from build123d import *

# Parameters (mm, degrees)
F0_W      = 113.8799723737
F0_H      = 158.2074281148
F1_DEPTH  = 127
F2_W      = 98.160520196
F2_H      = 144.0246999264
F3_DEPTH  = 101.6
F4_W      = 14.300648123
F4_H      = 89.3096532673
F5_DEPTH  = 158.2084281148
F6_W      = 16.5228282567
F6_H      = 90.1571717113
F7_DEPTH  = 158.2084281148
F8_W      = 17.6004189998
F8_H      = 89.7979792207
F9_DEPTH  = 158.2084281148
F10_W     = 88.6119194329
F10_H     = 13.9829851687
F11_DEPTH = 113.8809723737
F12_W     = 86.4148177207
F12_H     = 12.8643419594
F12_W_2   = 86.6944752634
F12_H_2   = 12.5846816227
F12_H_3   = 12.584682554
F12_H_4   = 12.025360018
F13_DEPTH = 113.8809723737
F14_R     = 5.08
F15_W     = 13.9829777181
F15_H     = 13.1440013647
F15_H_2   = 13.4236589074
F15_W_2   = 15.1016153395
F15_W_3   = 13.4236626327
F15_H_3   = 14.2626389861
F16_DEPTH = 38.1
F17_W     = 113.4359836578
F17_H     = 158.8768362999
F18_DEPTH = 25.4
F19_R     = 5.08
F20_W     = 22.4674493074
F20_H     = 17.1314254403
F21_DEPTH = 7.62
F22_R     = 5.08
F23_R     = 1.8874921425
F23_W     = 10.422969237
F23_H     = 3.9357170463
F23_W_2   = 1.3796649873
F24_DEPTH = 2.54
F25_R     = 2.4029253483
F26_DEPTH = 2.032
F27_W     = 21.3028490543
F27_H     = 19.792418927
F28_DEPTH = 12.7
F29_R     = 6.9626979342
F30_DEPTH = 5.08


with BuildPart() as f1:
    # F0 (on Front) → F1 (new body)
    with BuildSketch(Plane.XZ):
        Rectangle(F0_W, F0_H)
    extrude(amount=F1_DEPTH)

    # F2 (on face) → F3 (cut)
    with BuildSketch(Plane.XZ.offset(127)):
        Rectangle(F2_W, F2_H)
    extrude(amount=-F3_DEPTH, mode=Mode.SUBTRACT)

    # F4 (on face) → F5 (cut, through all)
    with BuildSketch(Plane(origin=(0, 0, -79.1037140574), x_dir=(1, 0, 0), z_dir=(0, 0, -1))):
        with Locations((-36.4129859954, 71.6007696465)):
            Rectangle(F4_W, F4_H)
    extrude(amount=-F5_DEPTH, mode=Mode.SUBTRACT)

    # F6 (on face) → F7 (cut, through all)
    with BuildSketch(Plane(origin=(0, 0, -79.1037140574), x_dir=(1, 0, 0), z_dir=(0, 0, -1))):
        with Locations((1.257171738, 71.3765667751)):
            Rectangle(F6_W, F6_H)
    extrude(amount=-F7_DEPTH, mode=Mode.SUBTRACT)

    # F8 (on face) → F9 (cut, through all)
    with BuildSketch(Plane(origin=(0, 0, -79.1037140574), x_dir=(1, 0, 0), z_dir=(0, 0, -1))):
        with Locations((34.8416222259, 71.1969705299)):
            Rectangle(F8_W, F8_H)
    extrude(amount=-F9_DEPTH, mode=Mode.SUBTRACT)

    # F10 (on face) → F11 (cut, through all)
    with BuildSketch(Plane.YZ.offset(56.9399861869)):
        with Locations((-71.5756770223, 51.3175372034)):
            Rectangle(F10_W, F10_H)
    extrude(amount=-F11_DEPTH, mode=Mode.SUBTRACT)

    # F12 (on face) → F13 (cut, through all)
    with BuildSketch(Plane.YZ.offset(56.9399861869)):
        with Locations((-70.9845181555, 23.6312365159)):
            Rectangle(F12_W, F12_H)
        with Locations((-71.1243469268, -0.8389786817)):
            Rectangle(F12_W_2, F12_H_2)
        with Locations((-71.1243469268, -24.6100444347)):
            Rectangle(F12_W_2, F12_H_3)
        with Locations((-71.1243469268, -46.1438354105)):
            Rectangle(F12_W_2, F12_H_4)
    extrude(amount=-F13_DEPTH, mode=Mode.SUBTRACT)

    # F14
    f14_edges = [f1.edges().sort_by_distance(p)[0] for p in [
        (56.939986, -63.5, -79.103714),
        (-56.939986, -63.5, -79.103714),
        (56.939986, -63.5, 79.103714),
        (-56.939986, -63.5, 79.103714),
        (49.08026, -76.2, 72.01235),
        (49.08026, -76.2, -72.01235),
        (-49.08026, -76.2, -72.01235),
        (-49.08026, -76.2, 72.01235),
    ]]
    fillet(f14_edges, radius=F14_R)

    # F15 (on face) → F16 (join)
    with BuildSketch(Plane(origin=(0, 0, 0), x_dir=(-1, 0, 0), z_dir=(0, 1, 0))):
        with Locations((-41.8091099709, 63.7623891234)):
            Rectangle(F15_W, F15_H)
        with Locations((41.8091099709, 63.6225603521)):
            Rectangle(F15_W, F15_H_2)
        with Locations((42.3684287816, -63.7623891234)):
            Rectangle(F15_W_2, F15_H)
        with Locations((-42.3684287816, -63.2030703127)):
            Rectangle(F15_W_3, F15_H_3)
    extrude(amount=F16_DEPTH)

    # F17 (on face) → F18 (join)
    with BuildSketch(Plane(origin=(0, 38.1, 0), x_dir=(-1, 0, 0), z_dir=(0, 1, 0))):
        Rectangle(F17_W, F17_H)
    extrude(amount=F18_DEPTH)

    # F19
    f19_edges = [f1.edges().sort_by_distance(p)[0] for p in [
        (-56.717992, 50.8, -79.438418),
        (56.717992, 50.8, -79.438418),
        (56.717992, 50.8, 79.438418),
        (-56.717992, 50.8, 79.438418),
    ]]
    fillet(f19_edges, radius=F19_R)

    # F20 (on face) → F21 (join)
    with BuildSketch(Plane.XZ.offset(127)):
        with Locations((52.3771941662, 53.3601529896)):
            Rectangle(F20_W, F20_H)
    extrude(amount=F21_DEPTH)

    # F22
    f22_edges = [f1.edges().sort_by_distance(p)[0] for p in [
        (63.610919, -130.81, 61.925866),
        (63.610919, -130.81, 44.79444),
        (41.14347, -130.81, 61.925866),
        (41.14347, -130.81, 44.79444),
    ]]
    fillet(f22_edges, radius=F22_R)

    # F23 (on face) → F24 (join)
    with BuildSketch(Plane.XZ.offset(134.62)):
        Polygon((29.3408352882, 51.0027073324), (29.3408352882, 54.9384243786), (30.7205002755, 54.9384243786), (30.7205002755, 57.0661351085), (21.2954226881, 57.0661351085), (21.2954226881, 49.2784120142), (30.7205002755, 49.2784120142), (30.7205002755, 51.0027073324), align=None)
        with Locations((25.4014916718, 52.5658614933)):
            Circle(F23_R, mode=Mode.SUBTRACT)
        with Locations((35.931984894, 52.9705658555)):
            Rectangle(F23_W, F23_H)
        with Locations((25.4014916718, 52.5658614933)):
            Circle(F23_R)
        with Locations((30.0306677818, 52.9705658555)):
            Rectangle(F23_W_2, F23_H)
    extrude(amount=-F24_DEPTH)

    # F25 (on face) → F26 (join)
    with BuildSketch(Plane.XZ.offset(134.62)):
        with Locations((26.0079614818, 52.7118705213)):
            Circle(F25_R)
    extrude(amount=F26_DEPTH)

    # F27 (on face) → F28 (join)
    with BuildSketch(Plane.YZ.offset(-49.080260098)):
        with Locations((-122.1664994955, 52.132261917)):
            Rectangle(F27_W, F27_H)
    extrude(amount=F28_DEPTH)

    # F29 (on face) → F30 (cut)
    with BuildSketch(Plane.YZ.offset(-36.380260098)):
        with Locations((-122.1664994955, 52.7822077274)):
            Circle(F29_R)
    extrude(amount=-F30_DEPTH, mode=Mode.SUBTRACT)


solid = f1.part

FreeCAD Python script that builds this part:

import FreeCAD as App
import Part
import Sketcher

V = App.Vector
Q = App.Units.Quantity


def edges_at(feature, points):
    """Names of the edges that pass closest to the given points."""
    edges = feature.Shape.Edges
    near = lambda p: min(range(len(edges)), key=lambda i: edges[i].distToShape(Part.Vertex(*p))[0])
    return sorted({f"Edge{near(p) + 1}" for p in points})


def add_polygon(sketch, points):
    """Adds a closed chain of lines whose ends are joined by coincident constraints."""
    first, n = sketch.GeometryCount, len(points)
    for a, b in zip(points, points[1:] + points[:1]):
        sketch.addGeometry(Part.LineSegment(App.Vector(*a, 0), App.Vector(*b, 0)), False)
    for i in range(n):
        sketch.addConstraint(Sketcher.Constraint("Coincident", first + i, 2, first + (i + 1) % n, 1))

doc = App.newDocument("Part")
body = doc.addObject("PartDesign::Body", "Body")

# Sketch on XZ plane
sketch1 = body.newObject("Sketcher::SketchObject", "Sketch")
sketch1.AttachmentSupport = (doc.getObject("XZ_Plane"), [""])
sketch1.MapMode = "FlatFace"
add_polygon(sketch1, [(-57, 79), (-57, -79), (57, -79), (57, 79)])  # lines 0-3
sketch1.addConstraint([
    Sketcher.Constraint("Vertical", 0),
    Sketcher.Constraint("Horizontal", 1),
    Sketcher.Constraint("Vertical", 2),
    Sketcher.Constraint("Horizontal", 3),
    Sketcher.Constraint("Symmetric", 0, 2, 2, 2, -1, 1),
    Sketcher.Constraint("DistanceY", 0, 2, 0, 1, Q("158.207428 mm")),
    Sketcher.Constraint("DistanceX", 1, 1, 1, 2, Q("113.879972 mm")),
])
pad1 = body.newObject("PartDesign::Pad", "Pad")
pad1.Profile = sketch1
pad1.Length = Q("5 in")

# Sketch on XZ plane
sketch2 = body.newObject("Sketcher::SketchObject", "Sketch001")
sketch2.AttachmentSupport = (doc.getObject("XZ_Plane"), [""])
sketch2.MapMode = "FlatFace"
sketch2.AttachmentOffset = App.Placement(V(0, 0, 5 * 25.4), App.Rotation())
add_polygon(sketch2, [(-49, 72), (-49, -72), (49, -72), (49, 72)])  # lines 0-3
sketch2.addConstraint([
    Sketcher.Constraint("Vertical", 0),
    Sketcher.Constraint("Horizontal", 1),
    Sketcher.Constraint("Vertical", 2),
    Sketcher.Constraint("Horizontal", 3),
    Sketcher.Constraint("Symmetric", 0, 2, 2, 2, -1, 1),
    Sketcher.Constraint("DistanceY", 0, 2, 0, 1, Q("144.0247 mm")),
    Sketcher.Constraint("DistanceX", 1, 1, 1, 2, Q("98.16052 mm")),
])
pocket1 = body.newObject("PartDesign::Pocket", "Pocket")
pocket1.Profile = sketch2
pocket1.Length = Q("4 in")

# Sketch on XY plane
sketch3 = body.newObject("Sketcher::SketchObject", "Sketch002")
sketch3.AttachmentSupport = (doc.getObject("XY_Plane"), [""])
sketch3.MapMode = "FlatFace"
sketch3.AttachmentOffset = App.Placement(V(0, 0, -79.103714), App.Rotation())
add_polygon(sketch3, [(-44, -116), (-44, -27), (-29, -27), (-29, -116)])  # lines 0-3
sketch3.addConstraint([
    Sketcher.Constraint("Vertical", 0),
    Sketcher.Constraint("Horizontal", 1),
    Sketcher.Constraint("Vertical", 2),
    Sketcher.Constraint("Horizontal", 3),
    Sketcher.Constraint("DistanceX", 1, 1, 1, 2, Q("14.300648 mm")),
    Sketcher.Constraint("DistanceY", 0, 1, 0, 2, Q("89.309653 mm")),
    Sketcher.Constraint("DistanceX", 0, 2, -1, 1, Q("43.56331 mm")),
    Sketcher.Constraint("DistanceY", 0, 2, -1, 1, Q("26.945943 mm")),
])
pocket2 = body.newObject("PartDesign::Pocket", "Pocket001")
pocket2.Profile = sketch3
pocket2.Type = "ThroughAll"
pocket2.Reversed = True

# Sketch on XY plane
sketch4 = body.newObject("Sketcher::SketchObject", "Sketch003")
sketch4.AttachmentSupport = (doc.getObject("XY_Plane"), [""])
sketch4.MapMode = "FlatFace"
sketch4.AttachmentOffset = App.Placement(V(0, 0, -79.103714), App.Rotation())
add_polygon(sketch4, [(-7, -116), (-7, -26), (10, -26), (10, -116)])  # lines 0-3
sketch4.addConstraint([
    Sketcher.Constraint("Vertical", 0),
    Sketcher.Constraint("Horizontal", 1),
    Sketcher.Constraint("Vertical", 2),
    Sketcher.Constraint("Horizontal", 3),
    Sketcher.Constraint("DistanceX", 1, 1, 1, 2, Q("16.522828 mm")),
    Sketcher.Constraint("DistanceY", 0, 1, 0, 2, Q("90.157172 mm")),
    Sketcher.Constraint("DistanceY", 0, 2, -1, 1, Q("26.297981 mm")),
    Sketcher.Constraint("DistanceX", 0, 2, -1, 1, Q("7.004242 mm")),
])
pocket3 = body.newObject("PartDesign::Pocket", "Pocket002")
pocket3.Profile = sketch4
pocket3.Type = "ThroughAll"
pocket3.Reversed = True

# Sketch on XY plane
sketch5 = body.newObject("Sketcher::SketchObject", "Sketch004")
sketch5.AttachmentSupport = (doc.getObject("XY_Plane"), [""])
sketch5.MapMode = "FlatFace"
sketch5.AttachmentOffset = App.Placement(V(0, 0, -79.103714), App.Rotation())
add_polygon(sketch5, [(26, -116), (26, -26), (44, -26), (44, -116)])  # lines 0-3
sketch5.addConstraint([
    Sketcher.Constraint("Vertical", 0),
    Sketcher.Constraint("Horizontal", 1),
    Sketcher.Constraint("Vertical", 2),
    Sketcher.Constraint("Horizontal", 3),
    Sketcher.Constraint("DistanceX", 1, 1, 1, 2, Q("17.600419 mm")),
    Sketcher.Constraint("DistanceY", 0, 1, 0, 2, Q("89.797979 mm")),
    Sketcher.Constraint("DistanceY", 0, 2, -1, 1, Q("26.297981 mm")),
    Sketcher.Constraint("DistanceX", -1, 1, 1, 2, Q("43.641832 mm")),
])
pocket4 = body.newObject("PartDesign::Pocket", "Pocket003")
pocket4.Profile = sketch5
pocket4.Type = "ThroughAll"
pocket4.Reversed = True

# Sketch on YZ plane
sketch6 = body.newObject("Sketcher::SketchObject", "Sketch005")
sketch6.AttachmentSupport = (doc.getObject("YZ_Plane"), [""])
sketch6.MapMode = "FlatFace"
sketch6.AttachmentOffset = App.Placement(V(0, 0, 56.939986), App.Rotation())
add_polygon(sketch6, [(-116, 58), (-116, 44), (-27, 44), (-27, 58)])  # lines 0-3
sketch6.addConstraint([
    Sketcher.Constraint("Vertical", 0),
    Sketcher.Constraint("Horizontal", 1),
    Sketcher.Constraint("Vertical", 2),
    Sketcher.Constraint("Horizontal", 3),
    Sketcher.Constraint("DistanceX", 1, 1, 1, 2, Q("88.611919 mm")),
    Sketcher.Constraint("DistanceY", 0, 2, 0, 1, Q("13.982985 mm")),
    Sketcher.Constraint("DistanceY", -1, 1, 2, 2, Q("58.30903 mm")),
    Sketcher.Constraint("DistanceX", 0, 2, -1, 1, Q("115.881637 mm")),
])
pocket5 = body.newObject("PartDesign::Pocket", "Pocket004")
pocket5.Profile = sketch6
pocket5.Type = "ThroughAll"

# Sketch on YZ plane
sketch7 = body.newObject("Sketcher::SketchObject", "Sketch006")
sketch7.AttachmentSupport = (doc.getObject("YZ_Plane"), [""])
sketch7.MapMode = "FlatFace"
sketch7.AttachmentOffset = App.Placement(V(0, 0, 56.939986), App.Rotation())
add_polygon(sketch7, [(-114, 30), (-114, 17), (-28, 17), (-28, 30)])  # lines 0-3
add_polygon(sketch7, [(-114, 5), (-114, -7), (-28, -7), (-28, 5)])  # lines 4-7
add_polygon(sketch7, [(-114, -18), (-114, -31), (-28, -31), (-28, -18)])  # lines 8-11
add_polygon(sketch7, [(-114, -40), (-114, -52), (-28, -52), (-28, -40)])  # lines 12-15
sketch7.addConstraint([
    Sketcher.Constraint("Vertical", 0),
    Sketcher.Constraint("Horizontal", 1),
    Sketcher.Constraint("Vertical", 2),
    Sketcher.Constraint("Horizontal", 3),
    Sketcher.Constraint("Vertical", 4),
    Sketcher.Constraint("Horizontal", 5),
    Sketcher.Constraint("Vertical", 6),
    Sketcher.Constraint("Horizontal", 7),
    Sketcher.Constraint("Vertical", 8),
    Sketcher.Constraint("Horizontal", 9),
    Sketcher.Constraint("Vertical", 10),
    Sketcher.Constraint("Horizontal", 11),
    Sketcher.Constraint("Vertical", 12),
    Sketcher.Constraint("Horizontal", 13),
    Sketcher.Constraint("Vertical", 14),
    Sketcher.Constraint("Horizontal", 15),
    Sketcher.Constraint("Vertical", 2, 2, 5, 2),
    Sketcher.Constraint("Vertical", 7, 2, 8, 2),
    Sketcher.Constraint("Vertical", 6, 2, 9, 2),
    Sketcher.Constraint("Vertical", 11, 2, 12, 2),
    Sketcher.Constraint("Vertical", 10, 2, 13, 2),
    Sketcher.Constraint("Equal", 6, 8),
    Sketcher.Constraint("DistanceY", 0, 2, 0, 1, Q("12.864342 mm")),
    Sketcher.Constraint("DistanceY", 4, 2, 4, 1, Q("12.584682 mm")),
    Sketcher.Constraint("DistanceY", 12, 2, 12, 1, Q("12.02536 mm")),
    Sketcher.Constraint("DistanceX", 1, 1, 1, 2, Q("86.414818 mm")),
    Sketcher.Constraint("DistanceX", 5, 1, 5, 2, Q("86.694475 mm")),
    Sketcher.Constraint("DistanceX", 1, 2, -1, 1, Q("27.777109 mm")),
    Sketcher.Constraint("DistanceY", 4, 2, -1, 1, Q("7.131319 mm")),
    Sketcher.Constraint("DistanceY", 8, 2, 0, 2, Q("48.101451 mm")),
    Sketcher.Constraint("DistanceY", 12, 2, 8, 2, Q("21.25413 mm")),
    Sketcher.Constraint("DistanceY", -1, 1, 0, 2, Q("17.199066 mm")),
])
pocket6 = body.newObject("PartDesign::Pocket", "Pocket005")
pocket6.Profile = sketch7
pocket6.Type = "ThroughAll"
doc.recompute()

fillet = body.newObject("PartDesign::Fillet", "Fillet")
fillet.Base = (pocket6, edges_at(pocket6, [
    (56.94, -63.5, -79.104),
    (-56.94, -63.5, -79.104),
    (56.94, -63.5, 79.104),
    (-56.94, -63.5, 79.104),
    (49.08, -76.2, 72.012),
    (49.08, -76.2, -72.012),
    (-49.08, -76.2, -72.012),
    (-49.08, -76.2, 72.012),
]))
fillet.Radius = Q("0.2 in")

# Sketch on XZ plane
sketch8 = body.newObject("Sketcher::SketchObject", "Sketch007")
sketch8.AttachmentSupport = (doc.getObject("XZ_Plane"), [""])
sketch8.MapMode = "FlatFace"
add_polygon(sketch8, [(49, 70), (49, 57), (35, 57), (35, 70)])  # lines 0-3
add_polygon(sketch8, [(-35, 70), (-35, 57), (-49, 57), (-49, 70)])  # lines 4-7
add_polygon(sketch8, [(-35, -57), (-35, -70), (-50, -70), (-50, -57)])  # lines 8-11
add_polygon(sketch8, [(49, -56), (49, -70), (36, -70), (36, -56)])  # lines 12-15
sketch8.addConstraint([
    Sketcher.Constraint("Vertical", 0),
    Sketcher.Constraint("Horizontal", 1),
    Sketcher.Constraint("Vertical", 2),
    Sketcher.Constraint("Horizontal", 3),
    Sketcher.Constraint("Vertical", 4),
    Sketcher.Constraint("Horizontal", 5),
    Sketcher.Constraint("Vertical", 6),
    Sketcher.Constraint("Horizontal", 7),
    Sketcher.Constraint("Vertical", 8),
    Sketcher.Constraint("Horizontal", 9),
    Sketcher.Constraint("Vertical", 10),
    Sketcher.Constraint("Horizontal", 11),
    Sketcher.Constraint("Vertical", 12),
    Sketcher.Constraint("Horizontal", 13),
    Sketcher.Constraint("Vertical", 14),
    Sketcher.Constraint("Horizontal", 15),
    Sketcher.Constraint("Symmetric", 2, 2, 8, 2, -1, 1),
    Sketcher.Constraint("Symmetric", 3, 2, 6, 2, -2),
    Sketcher.Constraint("Horizontal", 9, 2, 12, 2),
    Sketcher.Constraint("Vertical", 7, 2, 8, 2),
    Sketcher.Constraint("Equal", 2, 8),
    Sketcher.Constraint("DistanceY", 0, 2, 0, 1, Q("13.144001 mm")),
    Sketcher.Constraint("DistanceY", 4, 2, 4, 1, Q("13.423659 mm")),
    Sketcher.Constraint("DistanceY", 12, 2, 12, 1, Q("14.262639 mm")),
    Sketcher.Constraint("DistanceX", -1, 1, 0, 2, Q("48.800599 mm")),
    Sketcher.Constraint("DistanceX", 1, 2, 1, 1, Q("13.982978 mm")),
    Sketcher.Constraint("DistanceX", 9, 2, 9, 1, Q("15.101615 mm")),
    Sketcher.Constraint("DistanceX", 13, 2, 13, 1, Q("13.423663 mm")),
    Sketcher.Constraint("DistanceY", -1, 1, 0, 2, Q("57.190388 mm")),
    Sketcher.Constraint("DistanceX", -1, 1, 12, 2, Q("49.08026 mm")),
])
pad2 = body.newObject("PartDesign::Pad", "Pad001")
pad2.Profile = sketch8
pad2.Length = Q("1.5 in")
pad2.Reversed = True

# Sketch on XZ plane
sketch9 = body.newObject("Sketcher::SketchObject", "Sketch008")
sketch9.AttachmentSupport = (doc.getObject("XZ_Plane"), [""])
sketch9.MapMode = "FlatFace"
sketch9.AttachmentOffset = App.Placement(V(0, 0, -1.5 * 25.4), App.Rotation())
add_polygon(sketch9, [(57, 79), (57, -79), (-57, -79), (-57, 79)])  # lines 0-3
sketch9.addConstraint([
    Sketcher.Constraint("Vertical", 0),
    Sketcher.Constraint("Horizontal", 1),
    Sketcher.Constraint("Vertical", 2),
    Sketcher.Constraint("Horizontal", 3),
    Sketcher.Constraint("Symmetric", 0, 2, 2, 2, -1, 1),
    Sketcher.Constraint("DistanceX", 1, 2, 1, 1, Q("113.435984 mm")),
    Sketcher.Constraint("DistanceY", 0, 2, 0, 1, Q("158.876836 mm")),
])
pad3 = body.newObject("PartDesign::Pad", "Pad002")
pad3.Profile = sketch9
pad3.Length = Q("1 in")
pad3.Reversed = True
doc.recompute()

fillet2 = body.newObject("PartDesign::Fillet", "Fillet001")
fillet2.Base = (pad3, edges_at(pad3, [
    (-56.718, 50.8, -79.438),
    (56.718, 50.8, -79.438),
    (56.718, 50.8, 79.438),
    (-56.718, 50.8, 79.438),
]))
fillet2.Radius = Q("0.2 in")

# Sketch on XZ plane
sketch10 = body.newObject("Sketcher::SketchObject", "Sketch009")
sketch10.AttachmentSupport = (doc.getObject("XZ_Plane"), [""])
sketch10.MapMode = "FlatFace"
sketch10.AttachmentOffset = App.Placement(V(0, 0, 5 * 25.4), App.Rotation())
add_polygon(sketch10, [(41, 62), (41, 45), (64, 45), (64, 62)])  # lines 0-3
sketch10.addConstraint([
    Sketcher.Constraint("Vertical", 0),
    Sketcher.Constraint("Horizontal", 1),
    Sketcher.Constraint("Vertical", 2),
    Sketcher.Constraint("Horizontal", 3),
    Sketcher.Constraint("DistanceX", 1, 1, 1, 2, Q("22.467449 mm")),
    Sketcher.Constraint("DistanceY", 0, 2, 0, 1, Q("17.131425 mm")),
    Sketcher.Constraint("DistanceX", -1, 1, 0, 2, Q("41.14347 mm")),
    Sketcher.Constraint("DistanceY", -1, 1, 0, 2, Q("44.79444 mm")),
])
pad4 = body.newObject("PartDesign::Pad", "Pad003")
pad4.Profile = sketch10
pad4.Length = Q("0.3 in")
doc.recompute()

fillet3 = body.newObject("PartDesign::Fillet", "Fillet002")
fillet3.Base = (pad4, edges_at(pad4, [
    (63.611, -130.81, 61.926),
    (63.611, -130.81, 44.794),
    (41.143, -130.81, 61.926),
    (41.143, -130.81, 44.794),
]))
fillet3.Radius = Q("0.2 in")

# Sketch on XZ plane
sketch11 = body.newObject("Sketcher::SketchObject", "Sketch010")
sketch11.AttachmentSupport = (doc.getObject("XZ_Plane"), [""])
sketch11.MapMode = "FlatFace"
sketch11.AttachmentOffset = App.Placement(V(0, 0, 5.3 * 25.4), App.Rotation())
add_polygon(sketch11, [(30.7, 54.9), (30.7, 57.1), (21.3, 57.1), (21.3, 49.3), (30.7, 49.3), (30.7, 51), (41.1, 51), (41.1, 54.9)])  # lines 0-7
sketch11.addConstraint([
    Sketcher.Constraint("Vertical", 0),
    Sketcher.Constraint("Horizontal", 1),
    Sketcher.Constraint("Vertical", 2),
    Sketcher.Constraint("Horizontal", 3),
    Sketcher.Constraint("Vertical", 4),
    Sketcher.Constraint("Horizontal", 5),
    Sketcher.Constraint("Vertical", 6),
    Sketcher.Constraint("Horizontal", 7),
    Sketcher.Constraint("Vertical", 0, 2, 3, 2),
    Sketcher.Constraint("DistanceX", 5, 1, 5, 2, Q("10.422969 mm")),
    Sketcher.Constraint("DistanceY", 0, 1, 0, 2, Q("2.127711 mm")),
    Sketcher.Constraint("DistanceX", -1, 1, 0, 2, Q("30.7205 mm")),
    Sketcher.Constraint("DistanceX", 1, 2, 1, 1, Q("9.425078 mm")),
    Sketcher.Constraint("DistanceY", 2, 2, 2, 1, Q("7.787723 mm")),
    Sketcher.Constraint("DistanceY", 4, 1, 4, 2, Q("1.724295 mm")),
    Sketcher.Constraint("DistanceY", -1, 1, 0, 2, Q("57.066135 mm")),
])
pad5 = body.newObject("PartDesign::Pad", "Pad004")
pad5.Profile = sketch11
pad5.Length = Q("0.1 in")
pad5.Reversed = True

# Sketch on XZ plane
sketch12 = body.newObject("Sketcher::SketchObject", "Sketch011")
sketch12.AttachmentSupport = (doc.getObject("XZ_Plane"), [""])
sketch12.MapMode = "FlatFace"
sketch12.AttachmentOffset = App.Placement(V(0, 0, 5.3 * 25.4), App.Rotation())
sketch12.addGeometry(Part.Circle(V(26, 52.7, 0), V(0, 0, 1), 2.4), False)
sketch12.addConstraint([
    Sketcher.Constraint("Diameter", 0, Q("4.805851 mm")),
    Sketcher.Constraint("DistanceX", -1, 1, 0, 3, Q("26.007961 mm")),
    Sketcher.Constraint("DistanceY", -1, 1, 0, 3, Q("52.711871 mm")),
])
pad6 = body.newObject("PartDesign::Pad", "Pad005")
pad6.Profile = sketch12
pad6.Length = Q("0.08 in")

# Sketch on YZ plane
sketch13 = body.newObject("Sketcher::SketchObject", "Sketch012")
sketch13.AttachmentSupport = (doc.getObject("YZ_Plane"), [""])
sketch13.MapMode = "FlatFace"
sketch13.AttachmentOffset = App.Placement(V(0, 0, -49.08026), App.Rotation())
add_polygon(sketch13, [(-133, 62), (-133, 42), (-112, 42), (-112, 62)])  # lines 0-3
sketch13.addConstraint([
    Sketcher.Constraint("Vertical", 0),
    Sketcher.Constraint("Horizontal", 1),
    Sketcher.Constraint("Vertical", 2),
    Sketcher.Constraint("Horizontal", 3),
    Sketcher.Constraint("DistanceX", 1, 1, 1, 2, Q("21.302849 mm")),
    Sketcher.Constraint("DistanceY", 0, 2, 0, 1, Q("19.792419 mm")),
    Sketcher.Constraint("DistanceY", -1, 1, 2, 2, Q("62.028471 mm")),
    Sketcher.Constraint("DistanceX", 0, 2, -1, 1, Q("132.817924 mm")),
])
pad7 = body.newObject("PartDesign::Pad", "Pad006")
pad7.Profile = sketch13
pad7.Length = Q("0.5 in")

# Sketch on YZ plane
sketch14 = body.newObject("Sketcher::SketchObject", "Sketch013")
sketch14.AttachmentSupport = (doc.getObject("YZ_Plane"), [""])
sketch14.MapMode = "FlatFace"
sketch14.AttachmentOffset = App.Placement(V(0, 0, -36.38026), App.Rotation())
sketch14.addGeometry(Part.Circle(V(-122, 53, 0), V(0, 0, 1), 7), False)
sketch14.addConstraint([
    Sketcher.Constraint("Diameter", 0, Q("13.925396 mm")),
    Sketcher.Constraint("DistanceX", 0, 3, -1, 1, Q("122.166499 mm")),
    Sketcher.Constraint("DistanceY", -1, 1, 0, 3, Q("52.782208 mm")),
])
pocket7 = body.newObject("PartDesign::Pocket", "Pocket006")
pocket7.Profile = sketch14
pocket7.Length = Q("0.2 in")

doc.recompute()
